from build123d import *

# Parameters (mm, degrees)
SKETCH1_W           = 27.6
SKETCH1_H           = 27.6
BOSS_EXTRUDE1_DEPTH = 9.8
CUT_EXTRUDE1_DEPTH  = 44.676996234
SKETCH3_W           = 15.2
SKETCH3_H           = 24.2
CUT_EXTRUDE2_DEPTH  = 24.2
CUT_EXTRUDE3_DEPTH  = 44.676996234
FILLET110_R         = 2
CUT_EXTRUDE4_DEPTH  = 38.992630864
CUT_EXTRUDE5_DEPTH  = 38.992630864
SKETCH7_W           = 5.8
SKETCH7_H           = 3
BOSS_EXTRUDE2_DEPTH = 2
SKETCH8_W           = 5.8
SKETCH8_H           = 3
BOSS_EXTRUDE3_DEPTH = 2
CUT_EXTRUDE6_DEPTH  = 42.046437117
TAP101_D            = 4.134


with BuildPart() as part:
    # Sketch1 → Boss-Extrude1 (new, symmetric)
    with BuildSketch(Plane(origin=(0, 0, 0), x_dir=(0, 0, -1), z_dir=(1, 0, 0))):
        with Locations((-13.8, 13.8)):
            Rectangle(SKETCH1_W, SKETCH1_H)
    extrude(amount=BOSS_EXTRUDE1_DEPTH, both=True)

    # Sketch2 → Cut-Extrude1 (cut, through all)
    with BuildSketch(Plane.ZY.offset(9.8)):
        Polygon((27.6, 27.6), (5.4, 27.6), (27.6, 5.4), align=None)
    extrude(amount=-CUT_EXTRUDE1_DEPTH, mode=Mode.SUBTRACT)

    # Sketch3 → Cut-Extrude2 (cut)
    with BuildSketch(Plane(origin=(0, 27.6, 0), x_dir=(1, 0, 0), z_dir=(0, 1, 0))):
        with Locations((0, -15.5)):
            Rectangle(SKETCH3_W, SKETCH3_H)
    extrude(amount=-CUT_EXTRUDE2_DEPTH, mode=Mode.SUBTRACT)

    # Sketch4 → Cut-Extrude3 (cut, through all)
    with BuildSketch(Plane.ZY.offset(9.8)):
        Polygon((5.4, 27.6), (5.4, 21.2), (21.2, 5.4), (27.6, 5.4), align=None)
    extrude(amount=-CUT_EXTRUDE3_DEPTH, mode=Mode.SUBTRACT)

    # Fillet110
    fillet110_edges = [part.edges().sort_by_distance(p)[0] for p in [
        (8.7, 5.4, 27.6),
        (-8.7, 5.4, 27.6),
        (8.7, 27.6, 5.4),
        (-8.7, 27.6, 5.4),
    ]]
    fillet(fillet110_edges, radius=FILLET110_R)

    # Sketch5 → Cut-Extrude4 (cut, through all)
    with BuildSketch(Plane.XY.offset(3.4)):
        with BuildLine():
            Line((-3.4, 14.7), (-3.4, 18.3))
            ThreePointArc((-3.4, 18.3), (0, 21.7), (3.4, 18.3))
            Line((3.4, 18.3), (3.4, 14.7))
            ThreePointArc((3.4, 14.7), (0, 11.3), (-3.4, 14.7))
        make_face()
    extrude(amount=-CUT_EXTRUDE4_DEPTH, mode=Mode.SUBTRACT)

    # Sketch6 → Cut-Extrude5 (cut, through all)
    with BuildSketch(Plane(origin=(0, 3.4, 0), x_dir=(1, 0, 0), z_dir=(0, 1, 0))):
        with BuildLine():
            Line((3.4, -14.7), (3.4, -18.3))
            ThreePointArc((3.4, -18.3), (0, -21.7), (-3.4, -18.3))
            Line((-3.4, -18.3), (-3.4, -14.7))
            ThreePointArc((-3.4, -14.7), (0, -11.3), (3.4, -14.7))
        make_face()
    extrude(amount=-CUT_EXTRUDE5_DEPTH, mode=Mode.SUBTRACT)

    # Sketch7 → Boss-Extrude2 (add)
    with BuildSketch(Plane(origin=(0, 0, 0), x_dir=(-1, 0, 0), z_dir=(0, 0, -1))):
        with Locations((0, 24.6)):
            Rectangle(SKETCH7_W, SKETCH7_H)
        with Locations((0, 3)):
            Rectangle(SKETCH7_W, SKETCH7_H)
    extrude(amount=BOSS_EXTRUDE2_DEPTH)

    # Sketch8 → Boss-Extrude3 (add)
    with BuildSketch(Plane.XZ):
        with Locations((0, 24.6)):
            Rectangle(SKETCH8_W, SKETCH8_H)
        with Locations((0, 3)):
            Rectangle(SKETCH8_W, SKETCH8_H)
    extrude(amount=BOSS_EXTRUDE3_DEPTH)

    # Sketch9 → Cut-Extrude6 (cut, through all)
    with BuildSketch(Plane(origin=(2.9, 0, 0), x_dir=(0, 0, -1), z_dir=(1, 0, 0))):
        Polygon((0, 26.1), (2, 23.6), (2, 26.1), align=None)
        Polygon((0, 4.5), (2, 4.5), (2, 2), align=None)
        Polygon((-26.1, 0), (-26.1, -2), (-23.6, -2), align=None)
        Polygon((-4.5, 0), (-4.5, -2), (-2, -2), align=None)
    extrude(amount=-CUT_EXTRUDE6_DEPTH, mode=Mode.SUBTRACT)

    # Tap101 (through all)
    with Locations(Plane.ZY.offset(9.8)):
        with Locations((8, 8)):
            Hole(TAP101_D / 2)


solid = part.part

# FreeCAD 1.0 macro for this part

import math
import FreeCAD as App
import Part
import Sketcher

V = App.Vector
Q = App.Units.Quantity


def edges_at(feature, points):
    """Names of the edges that pass closest to the given points."""
    edges = feature.Shape.Edges
    near = lambda p: min(range(len(edges)), key=lambda i: edges[i].distToShape(Part.Vertex(*p))[0])
    return sorted({f"Edge{near(p) + 1}" for p in points})

doc = App.newDocument("Part")
params = doc.addObject("Spreadsheet::Sheet", "Params")
for row, (alias, value) in enumerate([
    ("sketch1_width", "27.6 mm"),
    ("pad1_length", "19.6 mm"),
    ("sketch2_width", "22.2 mm"),
    ("sketch3_width", "15.2 mm"),
    ("sketch3_height", "24.2 mm"),
    ("pocket2_length", "24.2 mm"),
    ("sketch4_width", "6.4 mm"),
    ("fillet_radius", "2 mm"),
    ("sketch5_radius", "3.4 mm"),
    ("sketch5_height", "3.6 mm"),
    ("sketch6_radius", "3.4 mm"),
    ("sketch6_height", "3.6 mm"),
    ("sketch7_height", "3 mm"),
    ("sketch7_width", "5.8 mm"),
    ("pad2_length", "2 mm"),
    ("sketch8_height", "3 mm"),
    ("sketch8_width", "5.8 mm"),
    ("pad3_length", "2 mm"),
    ("sketch9_width", "2 mm"),
    ("sketch9_width2", "2.5 mm"),
    ("hole_diameter", "4.134 mm"),
], start=1):
    params.set(f"A{row}", alias)
    params.set(f"B{row}", "=" + value)
    params.setAlias(f"B{row}", alias)

body = doc.addObject("PartDesign::Body", "Body")

# Sketch on YZ plane
sketch1 = doc.addObject("Sketcher::SketchObject", "Sketch")
body.addObject(sketch1)
sketch1.AttachmentSupport = (doc.YZ_Plane, [""])
sketch1.MapMode = "FlatFace"
sketch1.addGeometry([
    Part.LineSegment(V(28, 28, 0), V(0, 28, 0)),
    Part.LineSegment(V(0, 28, 0), V(0, 0, 0)),
    Part.LineSegment(V(0, 0, 0), V(28, 0, 0)),
    Part.LineSegment(V(28, 0, 0), V(28, 28, 0)),
], False)
sketch1.addConstraint([
    Sketcher.Constraint("Coincident", 0, 2, 1, 1),
    Sketcher.Constraint("Coincident", 1, 2, 2, 1),
    Sketcher.Constraint("Coincident", 2, 2, 3, 1),
    Sketcher.Constraint("Coincident", 3, 2, 0, 1),
    Sketcher.Constraint("Horizontal", 0),
    Sketcher.Constraint("Vertical", 1),
    Sketcher.Constraint("Horizontal", 2),
    Sketcher.Constraint("Vertical", 3),
    Sketcher.Constraint("Coincident", 1, 2, -1, 1),
    Sketcher.Constraint("Equal", 2, 1),
    Sketcher.Constraint("DistanceX", 0, 2, 0, 1, Q("27.6 mm")),
])
sketch1.setExpression("Constraints[10]", "Params.sketch1_width")
pad1 = doc.addObject("PartDesign::Pad", "Pad")
body.addObject(pad1)
pad1.Profile = sketch1
pad1.setExpression("Length", "Params.pad1_length")
pad1.Midplane = True

# Sketch on YZ plane
sketch2 = doc.addObject("Sketcher::SketchObject", "Sketch001")
body.addObject(sketch2)
sketch2.AttachmentSupport = (doc.YZ_Plane, [""])
sketch2.MapMode = "FlatFace"
sketch2.AttachmentOffset = App.Placement(V(0, 0, -9.8), App.Rotation())
sketch2.addGeometry([
    Part.LineSegment(V(28, 28, 0), V(28, 5, 0)),
    Part.LineSegment(V(28, 5, 0), V(5, 28, 0)),
    Part.LineSegment(V(5, 28, 0), V(28, 28, 0)),
], False)
sketch2.addConstraint([
    Sketcher.Constraint("Coincident", 0, 2, 1, 1),
    Sketcher.Constraint("Coincident", 1, 2, 2, 1),
    Sketcher.Constraint("Coincident", 2, 2, 0, 1),
    Sketcher.Constraint("Vertical", 0),
    Sketcher.Constraint("Horizontal", 2),
    Sketcher.Constraint("Equal", 2, 0),
    Sketcher.Constraint("DistanceX", 2, 1, 2, 2, Q("22.2 mm")),
    Sketcher.Constraint("DistanceX", -1, 1, 0, 2, Q("27.6 mm")),
    Sketcher.Constraint("DistanceY", -1, 1, 0, 2, Q("5.4 mm")),
])
sketch2.setExpression("Constraints[6]", "Params.sketch2_width")
pocket1 = doc.addObject("PartDesign::Pocket", "Pocket")
body.addObject(pocket1)
pocket1.Profile = sketch2
pocket1.Type = "ThroughAll"
pocket1.Reversed = True

# Sketch on XZ plane
sketch3 = doc.addObject("Sketcher::SketchObject", "Sketch002")
body.addObject(sketch3)
sketch3.AttachmentSupport = (doc.XZ_Plane, [""])
sketch3.MapMode = "FlatFace"
sketch3.AttachmentOffset = App.Placement(V(0, 0, -27.6), App.Rotation())
sketch3.addGeometry([
    Part.LineSegment(V(-8, 3, 0), V(-8, 28, 0)),
    Part.LineSegment(V(-8, 28, 0), V(8, 28, 0)),
    Part.LineSegment(V(8, 28, 0), V(8, 3, 0)),
    Part.LineSegment(V(8, 3, 0), V(-8, 3, 0)),
], False)
sketch3.addConstraint([
    Sketcher.Constraint("Coincident", 0, 2, 1, 1),
    Sketcher.Constraint("Coincident", 1, 2, 2, 1),
    Sketcher.Constraint("Coincident", 2, 2, 3, 1),
    Sketcher.Constraint("Coincident", 3, 2, 0, 1),
    Sketcher.Constraint("Vertical", 0),
    Sketcher.Constraint("Horizontal", 1),
    Sketcher.Constraint("Vertical", 2),
    Sketcher.Constraint("Horizontal", 3),
    Sketcher.Constraint("DistanceX", 1, 1, 1, 2, Q("15.2 mm")),
    Sketcher.Constraint("DistanceY", 0, 1, 0, 2, Q("24.2 mm")),
    Sketcher.Constraint("DistanceX", 0, 2, -1, 1, Q("7.6 mm")),
    Sketcher.Constraint("DistanceY", -1, 1, 0, 2, Q("27.6 mm")),
])
sketch3.setExpression("Constraints[8]", "Params.sketch3_width")
sketch3.setExpression("Constraints[9]", "Params.sketch3_height")
pocket2 = doc.addObject("PartDesign::Pocket", "Pocket001")
body.addObject(pocket2)
pocket2.Profile = sketch3
pocket2.setExpression("Length", "Params.pocket2_length")
pocket2.Reversed = True

# Sketch on YZ plane
sketch4 = doc.addObject("Sketcher::SketchObject", "Sketch003")
body.addObject(sketch4)
sketch4.AttachmentSupport = (doc.YZ_Plane, [""])
sketch4.MapMode = "FlatFace"
sketch4.AttachmentOffset = App.Placement(V(0, 0, -9.8), App.Rotation())
sketch4.addGeometry([
    Part.LineSegment(V(28, 5, 0), V(21, 5, 0)),
    Part.LineSegment(V(21, 5, 0), V(5, 21, 0)),
    Part.LineSegment(V(5, 21, 0), V(5, 28, 0)),
    Part.LineSegment(V(5, 28, 0), V(28, 5, 0)),
], False)
sketch4.addConstraint([
    Sketcher.Constraint("Coincident", 0, 2, 1, 1),
    Sketcher.Constraint("Coincident", 1, 2, 2, 1),
    Sketcher.Constraint("Coincident", 2, 2, 3, 1),
    Sketcher.Constraint("Coincident", 3, 2, 0, 1),
    Sketcher.Constraint("Horizontal", 0),
    Sketcher.Constraint("Vertical", 2),
    Sketcher.Constraint("Parallel", 1, 3),
    Sketcher.Constraint("Equal", 0, 2),
    Sketcher.Constraint("DistanceX", 0, 2, 0, 1, Q("6.4 mm")),
    Sketcher.Constraint("DistanceX", -1, 1, 0, 2, Q("21.2 mm")),
    Sketcher.Constraint("DistanceY", -1, 1, 0, 2, Q("5.4 mm")),
    Sketcher.Constraint("DistanceX", -1, 1, 1, 2, Q("5.4 mm")),
])
sketch4.setExpression("Constraints[8]", "Params.sketch4_width")
pocket3 = doc.addObject("PartDesign::Pocket", "Pocket002")
body.addObject(pocket3)
pocket3.Profile = sketch4
pocket3.Type = "ThroughAll"
pocket3.Reversed = True
doc.recompute()

fillet = doc.addObject("PartDesign::Fillet", "Fillet")
body.addObject(fillet)
fillet.Base = (pocket3, edges_at(pocket3, [
    (8.7, 5.4, 27.6),
    (-8.7, 5.4, 27.6),
    (8.7, 27.6, 5.4),
    (-8.7, 27.6, 5.4),
]))
fillet.setExpression("Radius", "Params.fillet_radius")

# Sketch on XY plane
sketch5 = doc.addObject("Sketcher::SketchObject", "Sketch004")
body.addObject(sketch5)
sketch5.AttachmentSupport = (doc.XY_Plane, [""])
sketch5.MapMode = "FlatFace"
sketch5.AttachmentOffset = App.Placement(V(0, 0, 3.4), App.Rotation())
sketch5.addGeometry([
    Part.LineSegment(V(-3.4, 18.3, 0), V(-3.4, 14.7, 0)),
    Part.ArcOfCircle(Part.Circle(V(0, 14.7, 0), V(0, 0, 1), 3.4), math.radians(180), math.radians(360)),
    Part.LineSegment(V(3.4, 14.7, 0), V(3.4, 18.3, 0)),
    Part.ArcOfCircle(Part.Circle(V(0, 18.3, 0), V(0, 0, 1), 3.4), math.radians(0), math.radians(180)),
], False)
sketch5.addConstraint([
    Sketcher.Constraint("Tangent", 0, 2, 1, 1),
    Sketcher.Constraint("Tangent", 1, 2, 2, 1),
    Sketcher.Constraint("Tangent", 2, 2, 3, 1),
    Sketcher.Constraint("Tangent", 3, 2, 0, 1),
    Sketcher.Constraint("Vertical", 0),
    Sketcher.Constraint("Vertical", 2),
    Sketcher.Constraint("PointOnObject", 1, 3, -2),
    Sketcher.Constraint("Radius", 1, Q("3.4 mm")),
    Sketcher.Constraint("DistanceY", 0, 2, 0, 1, Q("3.6 mm")),
    Sketcher.Constraint("DistanceY", -1, 1, 1, 3, Q("14.7 mm")),
])
sketch5.setExpression("Constraints[7]", "Params.sketch5_radius")
sketch5.setExpression("Constraints[8]", "Params.sketch5_height")
pocket4 = doc.addObject("PartDesign::Pocket", "Pocket003")
body.addObject(pocket4)
pocket4.Profile = sketch5
pocket4.Type = "ThroughAll"

# Sketch on XZ plane
sketch6 = doc.addObject("Sketcher::SketchObject", "Sketch005")
body.addObject(sketch6)
sketch6.AttachmentSupport = (doc.XZ_Plane, [""])
sketch6.MapMode = "FlatFace"
sketch6.AttachmentOffset = App.Placement(V(0, 0, -3.4), App.Rotation())
sketch6.addGeometry([
    Part.LineSegment(V(3.4, 18.3, 0), V(3.4, 14.7, 0)),
    Part.ArcOfCircle(Part.Circle(V(0, 14.7, 0), V(0, 0, 1), 3.4), math.radians(180), math.radians(360)),
    Part.LineSegment(V(-3.4, 14.7, 0), V(-3.4, 18.3, 0)),
    Part.ArcOfCircle(Part.Circle(V(0, 18.3, 0), V(0, 0, 1), 3.4), math.radians(0), math.radians(180)),
], False)
sketch6.addConstraint([
    Sketcher.Constraint("Tangent", 0, 2, 1, 2),
    Sketcher.Constraint("Tangent", 1, 1, 2, 1),
    Sketcher.Constraint("Tangent", 2, 2, 3, 2),
    Sketcher.Constraint("Tangent", 3, 1, 0, 1),
    Sketcher.Constraint("Vertical", 0),
    Sketcher.Constraint("Vertical", 2),
    Sketcher.Constraint("PointOnObject", 1, 3, -2),
    Sketcher.Constraint("Radius", 1, Q("3.4 mm")),
    Sketcher.Constraint("DistanceY", 0, 2, 0, 1, Q("3.6 mm")),
    Sketcher.Constraint("DistanceY", -1, 1, 1, 3, Q("14.7 mm")),
])
sketch6.setExpression("Constraints[7]", "Params.sketch6_radius")
sketch6.setExpression("Constraints[8]", "Params.sketch6_height")
pocket5 = doc.addObject("PartDesign::Pocket", "Pocket004")
body.addObject(pocket5)
pocket5.Profile = sketch6
pocket5.Type = "ThroughAll"
pocket5.Reversed = True

# Sketch on XY plane
sketch7 = doc.addObject("Sketcher::SketchObject", "Sketch006")
body.addObject(sketch7)
sketch7.AttachmentSupport = (doc.XY_Plane, [""])
sketch7.MapMode = "FlatFace"
sketch7.addGeometry([
    Part.LineSegment(V(2.9, 26.1, 0), V(2.9, 23.1, 0)),  # 0
    Part.LineSegment(V(2.9, 23.1, 0), V(-2.9, 23.1, 0)),  # 1
    Part.LineSegment(V(-2.9, 23.1, 0), V(-2.9, 26.1, 0)),  # 2
    Part.LineSegment(V(-2.9, 26.1, 0), V(2.9, 26.1, 0)),  # 3
    Part.LineSegment(V(2.9, 4.5, 0), V(2.9, 1.5, 0)),  # 4
    Part.LineSegment(V(2.9, 1.5, 0), V(-2.9, 1.5, 0)),  # 5
    Part.LineSegment(V(-2.9, 1.5, 0), V(-2.9, 4.5, 0)),  # 6
    Part.LineSegment(V(-2.9, 4.5, 0), V(2.9, 4.5, 0)),  # 7
], False)
sketch7.addConstraint([
    Sketcher.Constraint("Coincident", 0, 2, 1, 1),
    Sketcher.Constraint("Coincident", 1, 2, 2, 1),
    Sketcher.Constraint("Coincident", 2, 2, 3, 1),
    Sketcher.Constraint("Coincident", 3, 2, 0, 1),
    Sketcher.Constraint("Coincident", 4, 2, 5, 1),
    Sketcher.Constraint("Coincident", 5, 2, 6, 1),
    Sketcher.Constraint("Coincident", 6, 2, 7, 1),
    Sketcher.Constraint("Coincident", 7, 2, 4, 1),
    Sketcher.Constraint("Vertical", 0),
    Sketcher.Constraint("Horizontal", 1),
    Sketcher.Constraint("Vertical", 2),
    Sketcher.Constraint("Horizontal", 3),
    Sketcher.Constraint("Vertical", 4),
    Sketcher.Constraint("Horizontal", 5),
    Sketcher.Constraint("Vertical", 6),
    Sketcher.Constraint("Horizontal", 7),
    Sketcher.Constraint("Vertical", 3, 2, 4, 2),
    Sketcher.Constraint("Vertical", 2, 2, 5, 2),
    Sketcher.Constraint("Equal", 2, 4),
    Sketcher.Constraint("DistanceY", 0, 2, 0, 1, Q("3 mm")),
    Sketcher.Constraint("DistanceX", 1, 2, 1, 1, Q("5.8 mm")),
    Sketcher.Constraint("DistanceX", -1, 1, 0, 2, Q("2.9 mm")),
    Sketcher.Constraint("DistanceY", -1, 1, 0, 2, Q("23.1 mm")),
    Sketcher.Constraint("DistanceY", -1, 1, 4, 2, Q("1.5 mm")),
])
sketch7.setExpression("Constraints[19]", "Params.sketch7_height")
sketch7.setExpression("Constraints[20]", "Params.sketch7_width")
pad2 = doc.addObject("PartDesign::Pad", "Pad001")
body.addObject(pad2)
pad2.Profile = sketch7
pad2.setExpression("Length", "Params.pad2_length")
pad2.Reversed = True

# Sketch on XZ plane
sketch8 = doc.addObject("Sketcher::SketchObject", "Sketch007")
body.addObject(sketch8)
sketch8.AttachmentSupport = (doc.XZ_Plane, [""])
sketch8.MapMode = "FlatFace"
sketch8.addGeometry([
    Part.LineSegment(V(-2.9, 26.1, 0), V(-2.9, 23.1, 0)),  # 0
    Part.LineSegment(V(-2.9, 23.1, 0), V(2.9, 23.1, 0)),  # 1
    Part.LineSegment(V(2.9, 23.1, 0), V(2.9, 26.1, 0)),  # 2
    Part.LineSegment(V(2.9, 26.1, 0), V(-2.9, 26.1, 0)),  # 3
    Part.LineSegment(V(-2.9, 4.5, 0), V(-2.9, 1.5, 0)),  # 4
    Part.LineSegment(V(-2.9, 1.5, 0), V(2.9, 1.5, 0)),  # 5
    Part.LineSegment(V(2.9, 1.5, 0), V(2.9, 4.5, 0)),  # 6
    Part.LineSegment(V(2.9, 4.5, 0), V(-2.9, 4.5, 0)),  # 7
], False)
sketch8.addConstraint([
    Sketcher.Constraint("Coincident", 0, 2, 1, 1),
    Sketcher.Constraint("Coincident", 1, 2, 2, 1),
    Sketcher.Constraint("Coincident", 2, 2, 3, 1),
    Sketcher.Constraint("Coincident", 3, 2, 0, 1),
    Sketcher.Constraint("Coincident", 4, 2, 5, 1),
    Sketcher.Constraint("Coincident", 5, 2, 6, 1),
    Sketcher.Constraint("Coincident", 6, 2, 7, 1),
    Sketcher.Constraint("Coincident", 7, 2, 4, 1),
    Sketcher.Constraint("Vertical", 0),
    Sketcher.Constraint("Horizontal", 1),
    Sketcher.Constraint("Vertical", 2),
    Sketcher.Constraint("Horizontal", 3),
    Sketcher.Constraint("Vertical", 4),
    Sketcher.Constraint("Horizontal", 5),
    Sketcher.Constraint("Vertical", 6),
    Sketcher.Constraint("Horizontal", 7),
    Sketcher.Constraint("Vertical", 3, 2, 4, 2),
    Sketcher.Constraint("Vertical", 2, 2, 5, 2),
    Sketcher.Constraint("Equal", 2, 4),
    Sketcher.Constraint("DistanceY", 0, 2, 0, 1, Q("3 mm")),
    Sketcher.Constraint("DistanceX", 1, 1, 1, 2, Q("5.8 mm")),
    Sketcher.Constraint("DistanceX", 0, 2, -1, 1, Q("2.9 mm")),
    Sketcher.Constraint("DistanceY", -1, 1, 0, 2, Q("23.1 mm")),
    Sketcher.Constraint("DistanceY", -1, 1, 4, 2, Q("1.5 mm")),
])
sketch8.setExpression("Constraints[19]", "Params.sketch8_height")
sketch8.setExpression("Constraints[20]", "Params.sketch8_width")
pad3 = doc.addObject("PartDesign::Pad", "Pad002")
body.addObject(pad3)
pad3.Profile = sketch8
pad3.setExpression("Length", "Params.pad3_length")

# Sketch on YZ plane
sketch9 = doc.addObject("Sketcher::SketchObject", "Sketch008")
body.addObject(sketch9)
sketch9.AttachmentSupport = (doc.YZ_Plane, [""])
sketch9.MapMode = "FlatFace"
sketch9.AttachmentOffset = App.Placement(V(0, 0, 2.9), App.Rotation())
sketch9.addGeometry([
    Part.LineSegment(V(26.1, 0, 0), V(23.6, -2, 0)),  # 0
    Part.LineSegment(V(23.6, -2, 0), V(26.1, -2, 0)),  # 1
    Part.LineSegment(V(26.1, -2, 0), V(26.1, 0, 0)),  # 2
    Part.LineSegment(V(4.5, -2, 0), V(4.5, 0, 0)),  # 3
    Part.LineSegment(V(4.5, 0, 0), V(2, -2, 0)),  # 4
    Part.LineSegment(V(2, -2, 0), V(4.5, -2, 0)),  # 5
    Part.LineSegment(V(0, 26.1, 0), V(-2, 26.1, 0)),  # 6
    Part.LineSegment(V(-2, 26.1, 0), V(-2, 23.6, 0)),  # 7
    Part.LineSegment(V(-2, 23.6, 0), V(0, 26.1, 0)),  # 8
    Part.LineSegment(V(0, 4.5, 0), V(-2, 4.5, 0)),  # 9
    Part.LineSegment(V(-2, 4.5, 0), V(-2, 2, 0)),  # 10
    Part.LineSegment(V(-2, 2, 0), V(0, 4.5, 0)),  # 11
], False)
sketch9.addConstraint([
    Sketcher.Constraint("Coincident", 0, 2, 1, 1),
    Sketcher.Constraint("Coincident", 1, 2, 2, 1),
    Sketcher.Constraint("Coincident", 2, 2, 0, 1),
    Sketcher.Constraint("Coincident", 3, 2, 4, 1),
    Sketcher.Constraint("Coincident", 4, 2, 5, 1),
    Sketcher.Constraint("Coincident", 5, 2, 3, 1),
    Sketcher.Constraint("Coincident", 6, 2, 7, 1),
    Sketcher.Constraint("Coincident", 7, 2, 8, 1),
    Sketcher.Constraint("Coincident", 8, 2, 6, 1),
    Sketcher.Constraint("Coincident", 9, 2, 10, 1),
    Sketcher.Constraint("Coincident", 10, 2, 11, 1),
    Sketcher.Constraint("Coincident", 11, 2, 9, 1),
    Sketcher.Constraint("Horizontal", 1),
    Sketcher.Constraint("Vertical", 2),
    Sketcher.Constraint("Vertical", 3),
    Sketcher.Constraint("Horizontal", 5),
    Sketcher.Constraint("Horizontal", 6),
    Sketcher.Constraint("Vertical", 7),
    Sketcher.Constraint("Horizontal", 9),
    Sketcher.Constraint("Vertical", 10),
    Sketcher.Constraint("Symmetric", 4, 2, 10, 2, -1, 1),
    Sketcher.Constraint("PointOnObject", 2, 2, -1),
    Sketcher.Constraint("PointOnObject", 3, 2, -1),
    Sketcher.Constraint("PointOnObject", 8, 2, -2),
    Sketcher.Constraint("PointOnObject", 11, 2, -2),
    Sketcher.Constraint("Parallel", 0, 4),
    Sketcher.Constraint("Parallel", 8, 11),
    Sketcher.Constraint("Horizontal", 1, 2, 4, 2),
    Sketcher.Constraint("Vertical", 7, 2, 9, 2),
    Sketcher.Constraint("Equal", 9, 2),
    Sketcher.Constraint("Equal", 5, 7),
    Sketcher.Constraint("DistanceX", 6, 2, 6, 1, Q("2 mm")),
    Sketcher.Constraint("DistanceX", 1, 1, 1, 2, Q("2.5 mm")),
    Sketcher.Constraint("DistanceX", -1, 1, 0, 2, Q("23.6 mm")),
    Sketcher.Constraint("DistanceY", -1, 1, 6, 2, Q("26.1 mm")),
])
sketch9.setExpression("Constraints[31]", "Params.sketch9_width")
sketch9.setExpression("Constraints[32]", "Params.sketch9_width2")
pocket6 = doc.addObject("PartDesign::Pocket", "Pocket005")
body.addObject(pocket6)
pocket6.Profile = sketch9
pocket6.Type = "ThroughAll"

# Sketch on YZ plane
sketch10 = doc.addObject("Sketcher::SketchObject", "Sketch009")
body.addObject(sketch10)
sketch10.AttachmentSupport = (doc.YZ_Plane, [""])
sketch10.MapMode = "FlatFace"
sketch10.AttachmentOffset = App.Placement(V(0, 0, -9.8), App.Rotation())
sketch10.addGeometry(Part.Circle(V(8, 8, 0), V(0, 0, 1), 2.1), False)
sketch10.addConstraint([
    Sketcher.Constraint("Diameter", 0, Q("4.134 mm")),
    Sketcher.Constraint("DistanceX", -1, 1, 0, 3, Q("8 mm")),
    Sketcher.Constraint("DistanceY", -1, 1, 0, 3, Q("8 mm")),
])
doc.recompute()
hole = doc.addObject("PartDesign::Hole", "Hole")
body.addObject(hole)
hole.Profile = sketch10
hole.ThreadType = "None"
hole.setExpression("Diameter", "Params.hole_diameter")
hole.DepthType = "ThroughAll"
hole.Reversed = True

doc.recompute()
